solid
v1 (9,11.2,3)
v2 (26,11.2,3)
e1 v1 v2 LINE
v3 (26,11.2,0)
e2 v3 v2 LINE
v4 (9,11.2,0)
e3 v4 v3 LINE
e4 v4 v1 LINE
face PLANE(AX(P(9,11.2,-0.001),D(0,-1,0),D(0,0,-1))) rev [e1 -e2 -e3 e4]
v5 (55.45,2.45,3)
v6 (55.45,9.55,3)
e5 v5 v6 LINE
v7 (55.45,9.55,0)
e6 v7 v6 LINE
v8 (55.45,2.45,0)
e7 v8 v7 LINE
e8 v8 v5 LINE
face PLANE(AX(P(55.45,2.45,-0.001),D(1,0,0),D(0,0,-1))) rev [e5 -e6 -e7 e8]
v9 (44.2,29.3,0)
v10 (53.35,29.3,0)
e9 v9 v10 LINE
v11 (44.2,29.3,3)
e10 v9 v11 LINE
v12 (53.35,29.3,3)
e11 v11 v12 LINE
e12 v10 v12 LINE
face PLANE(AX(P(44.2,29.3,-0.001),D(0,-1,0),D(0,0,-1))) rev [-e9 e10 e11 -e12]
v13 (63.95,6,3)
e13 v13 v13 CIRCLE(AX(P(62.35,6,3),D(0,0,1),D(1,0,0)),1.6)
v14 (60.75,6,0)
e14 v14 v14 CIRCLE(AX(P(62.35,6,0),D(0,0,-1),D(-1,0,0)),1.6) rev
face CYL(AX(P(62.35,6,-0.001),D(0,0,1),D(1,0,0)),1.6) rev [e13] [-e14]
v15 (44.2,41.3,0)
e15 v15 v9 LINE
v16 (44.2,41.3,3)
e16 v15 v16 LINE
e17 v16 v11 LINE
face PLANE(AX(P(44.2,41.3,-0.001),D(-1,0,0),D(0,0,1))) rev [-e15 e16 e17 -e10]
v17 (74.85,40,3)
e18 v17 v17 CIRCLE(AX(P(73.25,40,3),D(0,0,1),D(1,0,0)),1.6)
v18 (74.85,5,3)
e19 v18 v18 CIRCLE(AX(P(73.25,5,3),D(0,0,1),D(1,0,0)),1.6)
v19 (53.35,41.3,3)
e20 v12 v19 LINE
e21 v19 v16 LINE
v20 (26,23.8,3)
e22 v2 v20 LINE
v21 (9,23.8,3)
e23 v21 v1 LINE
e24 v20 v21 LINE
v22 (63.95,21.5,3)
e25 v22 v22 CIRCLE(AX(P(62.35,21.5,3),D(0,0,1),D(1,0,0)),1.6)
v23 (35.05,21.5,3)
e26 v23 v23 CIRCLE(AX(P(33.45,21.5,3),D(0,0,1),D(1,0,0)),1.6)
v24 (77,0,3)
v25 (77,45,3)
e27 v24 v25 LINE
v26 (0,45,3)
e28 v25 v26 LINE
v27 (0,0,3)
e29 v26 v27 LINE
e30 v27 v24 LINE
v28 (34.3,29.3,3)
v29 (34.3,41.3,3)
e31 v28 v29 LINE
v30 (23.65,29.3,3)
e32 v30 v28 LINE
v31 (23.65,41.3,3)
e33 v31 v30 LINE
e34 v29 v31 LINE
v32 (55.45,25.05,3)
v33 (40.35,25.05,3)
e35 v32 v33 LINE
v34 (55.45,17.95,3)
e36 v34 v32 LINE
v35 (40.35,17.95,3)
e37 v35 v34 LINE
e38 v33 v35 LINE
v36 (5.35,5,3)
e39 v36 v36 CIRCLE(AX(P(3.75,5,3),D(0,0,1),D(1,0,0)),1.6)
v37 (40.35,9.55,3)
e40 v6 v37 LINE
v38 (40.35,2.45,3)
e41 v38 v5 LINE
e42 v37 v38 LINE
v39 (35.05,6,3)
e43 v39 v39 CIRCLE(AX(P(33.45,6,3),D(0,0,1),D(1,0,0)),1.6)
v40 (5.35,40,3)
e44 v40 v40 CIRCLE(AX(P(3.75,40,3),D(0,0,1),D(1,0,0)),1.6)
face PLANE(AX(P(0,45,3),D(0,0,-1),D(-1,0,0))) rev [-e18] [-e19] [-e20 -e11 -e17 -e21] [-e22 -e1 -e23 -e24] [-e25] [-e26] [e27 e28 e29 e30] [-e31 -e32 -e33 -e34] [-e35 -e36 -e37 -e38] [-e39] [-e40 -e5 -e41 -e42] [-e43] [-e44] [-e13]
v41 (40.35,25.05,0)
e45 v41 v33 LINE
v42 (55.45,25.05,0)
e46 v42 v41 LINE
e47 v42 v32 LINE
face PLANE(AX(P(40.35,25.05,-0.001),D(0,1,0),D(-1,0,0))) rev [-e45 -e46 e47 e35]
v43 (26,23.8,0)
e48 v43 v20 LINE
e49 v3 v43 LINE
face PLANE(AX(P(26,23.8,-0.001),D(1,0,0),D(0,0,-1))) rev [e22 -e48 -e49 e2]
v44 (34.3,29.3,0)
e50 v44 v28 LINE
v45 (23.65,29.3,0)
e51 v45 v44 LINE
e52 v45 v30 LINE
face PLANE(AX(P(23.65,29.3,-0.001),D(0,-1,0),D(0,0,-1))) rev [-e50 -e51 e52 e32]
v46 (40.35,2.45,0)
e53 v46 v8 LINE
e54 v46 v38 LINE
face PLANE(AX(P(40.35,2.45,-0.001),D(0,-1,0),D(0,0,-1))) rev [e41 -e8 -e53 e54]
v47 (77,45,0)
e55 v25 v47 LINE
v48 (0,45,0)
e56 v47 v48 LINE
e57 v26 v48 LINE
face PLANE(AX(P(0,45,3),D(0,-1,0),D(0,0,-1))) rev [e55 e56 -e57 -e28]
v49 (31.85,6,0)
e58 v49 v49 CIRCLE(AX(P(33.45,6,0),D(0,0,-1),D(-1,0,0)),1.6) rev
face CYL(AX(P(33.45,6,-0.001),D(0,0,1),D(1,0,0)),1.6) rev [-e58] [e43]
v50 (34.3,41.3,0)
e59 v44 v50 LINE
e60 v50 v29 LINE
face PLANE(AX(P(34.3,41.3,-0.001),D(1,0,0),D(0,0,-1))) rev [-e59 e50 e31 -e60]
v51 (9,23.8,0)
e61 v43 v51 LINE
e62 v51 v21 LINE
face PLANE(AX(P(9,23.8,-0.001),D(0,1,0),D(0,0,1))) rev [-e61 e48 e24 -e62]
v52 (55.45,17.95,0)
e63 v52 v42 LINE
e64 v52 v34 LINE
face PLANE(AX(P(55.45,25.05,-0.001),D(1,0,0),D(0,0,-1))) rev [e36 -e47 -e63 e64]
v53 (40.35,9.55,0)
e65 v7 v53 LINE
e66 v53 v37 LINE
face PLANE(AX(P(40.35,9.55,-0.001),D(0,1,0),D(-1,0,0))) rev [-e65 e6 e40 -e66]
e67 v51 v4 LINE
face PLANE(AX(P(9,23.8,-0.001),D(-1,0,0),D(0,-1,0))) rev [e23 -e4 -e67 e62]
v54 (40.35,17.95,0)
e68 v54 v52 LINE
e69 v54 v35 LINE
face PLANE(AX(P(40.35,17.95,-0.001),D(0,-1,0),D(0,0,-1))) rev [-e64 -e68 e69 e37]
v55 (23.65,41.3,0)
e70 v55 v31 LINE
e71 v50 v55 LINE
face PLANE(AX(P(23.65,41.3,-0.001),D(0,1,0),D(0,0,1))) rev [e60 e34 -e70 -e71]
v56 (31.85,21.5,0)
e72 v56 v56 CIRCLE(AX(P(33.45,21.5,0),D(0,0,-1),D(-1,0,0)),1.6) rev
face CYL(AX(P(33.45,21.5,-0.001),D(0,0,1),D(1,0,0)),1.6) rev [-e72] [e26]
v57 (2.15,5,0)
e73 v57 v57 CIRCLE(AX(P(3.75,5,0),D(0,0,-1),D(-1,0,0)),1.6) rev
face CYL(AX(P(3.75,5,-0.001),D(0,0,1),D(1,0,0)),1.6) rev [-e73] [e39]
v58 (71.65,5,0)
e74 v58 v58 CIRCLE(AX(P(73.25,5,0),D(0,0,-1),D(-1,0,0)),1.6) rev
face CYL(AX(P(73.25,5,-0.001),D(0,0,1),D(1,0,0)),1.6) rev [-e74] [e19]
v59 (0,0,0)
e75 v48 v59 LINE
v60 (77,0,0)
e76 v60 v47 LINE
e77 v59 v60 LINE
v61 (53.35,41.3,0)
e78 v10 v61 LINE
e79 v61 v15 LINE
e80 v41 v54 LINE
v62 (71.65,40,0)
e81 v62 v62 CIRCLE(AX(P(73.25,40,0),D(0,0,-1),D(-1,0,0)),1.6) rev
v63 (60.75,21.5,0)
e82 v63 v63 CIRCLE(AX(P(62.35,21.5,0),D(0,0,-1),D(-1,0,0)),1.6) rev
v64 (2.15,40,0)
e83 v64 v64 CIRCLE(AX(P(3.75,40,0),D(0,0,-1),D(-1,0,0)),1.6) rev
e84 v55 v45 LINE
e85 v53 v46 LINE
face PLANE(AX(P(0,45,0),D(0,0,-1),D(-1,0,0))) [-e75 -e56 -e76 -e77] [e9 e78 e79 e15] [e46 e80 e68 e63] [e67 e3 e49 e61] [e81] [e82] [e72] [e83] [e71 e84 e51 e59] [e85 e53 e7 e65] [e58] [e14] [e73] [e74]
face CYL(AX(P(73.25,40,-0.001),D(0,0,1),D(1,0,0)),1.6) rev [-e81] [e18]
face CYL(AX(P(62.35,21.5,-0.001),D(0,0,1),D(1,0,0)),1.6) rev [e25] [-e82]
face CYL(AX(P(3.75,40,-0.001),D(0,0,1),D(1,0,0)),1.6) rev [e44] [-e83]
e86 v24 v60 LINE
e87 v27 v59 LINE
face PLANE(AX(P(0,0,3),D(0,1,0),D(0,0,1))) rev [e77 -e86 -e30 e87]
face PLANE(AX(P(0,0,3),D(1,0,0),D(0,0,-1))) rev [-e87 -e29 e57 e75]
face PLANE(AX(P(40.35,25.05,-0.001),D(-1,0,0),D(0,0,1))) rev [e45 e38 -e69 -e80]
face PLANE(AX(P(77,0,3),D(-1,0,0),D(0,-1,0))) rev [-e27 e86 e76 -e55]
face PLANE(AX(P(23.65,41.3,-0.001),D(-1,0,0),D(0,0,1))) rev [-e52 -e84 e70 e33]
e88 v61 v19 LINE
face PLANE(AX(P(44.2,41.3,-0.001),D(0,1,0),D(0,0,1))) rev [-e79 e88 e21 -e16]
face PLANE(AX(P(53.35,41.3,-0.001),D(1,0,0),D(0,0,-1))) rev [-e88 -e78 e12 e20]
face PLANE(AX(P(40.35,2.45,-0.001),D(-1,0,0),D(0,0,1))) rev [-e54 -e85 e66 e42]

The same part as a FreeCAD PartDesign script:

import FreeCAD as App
import Part
import Sketcher
from FreeCAD import Vector

doc = App.newDocument("Part")
body = doc.addObject("PartDesign::Body", "Body")

# Sketch on XY plane
sketch1 = body.newObject("Sketcher::SketchObject", "Sketch")
sketch1.AttachmentSupport = (doc.getObject("XY_Plane"), [""])
sketch1.MapMode = "FlatFace"
sketch1.addGeometry([
    Part.LineSegment(Vector(0, 45, 0), Vector(0, 0, 0)),
    Part.LineSegment(Vector(0, 0, 0), Vector(77, 0, 0)),
    Part.LineSegment(Vector(77, 0, 0), Vector(77, 45, 0)),
    Part.LineSegment(Vector(77, 45, 0), Vector(0, 45, 0)),
], False)
sketch1.addConstraint([
    Sketcher.Constraint("Coincident", 0, 2, 1, 1),
    Sketcher.Constraint("Coincident", 1, 2, 2, 1),
    Sketcher.Constraint("Coincident", 2, 2, 3, 1),
    Sketcher.Constraint("Coincident", 3, 2, 0, 1),
    Sketcher.Constraint("Vertical", 0),
    Sketcher.Constraint("Horizontal", 1),
    Sketcher.Constraint("Vertical", 2),
    Sketcher.Constraint("Horizontal", 3),
    Sketcher.Constraint("Coincident", 0, 2, -1, 1),
    Sketcher.Constraint("DistanceX", 1, 1, 1, 2, 77.0),
    Sketcher.Constraint("DistanceY", 0, 2, 0, 1, 45.0),
])
pad1 = body.newObject("PartDesign::Pad", "Pad")
pad1.Profile = sketch1
pad1.Length = 3

# Sketch on XY plane
sketch2 = body.newObject("Sketcher::SketchObject", "Sketch001")
sketch2.AttachmentSupport = (doc.getObject("XY_Plane"), [""])
sketch2.MapMode = "FlatFace"
sketch2.AttachmentOffset = App.Placement(Vector(0, 0, 3), App.Rotation())
sketch2.addGeometry(Part.Circle(Vector(3.75, 40, 0), Vector(0, 0, 1), 1.6), False)
sketch2.addConstraint([
    Sketcher.Constraint("Diameter", 0, 3.2),
    Sketcher.Constraint("DistanceY", -1, 1, 0, 3, 40.0),
    Sketcher.Constraint("DistanceX", -1, 1, 0, 3, 3.75),
])
pocket1 = body.newObject("PartDesign::Pocket", "Pocket")
pocket1.Profile = sketch2
pocket1.Type = "UpToFirst"

# Sketch on XY plane
sketch3 = body.newObject("Sketcher::SketchObject", "Sketch002")
sketch3.AttachmentSupport = (doc.getObject("XY_Plane"), [""])
sketch3.MapMode = "FlatFace"
sketch3.AttachmentOffset = App.Placement(Vector(0, 0, 3), App.Rotation())
sketch3.addGeometry(Part.Circle(Vector(3.75, 5, 0), Vector(0, 0, 1), 1.6), False)
sketch3.addConstraint([
    Sketcher.Constraint("Diameter", 0, 3.2),
    Sketcher.Constraint("DistanceY", -1, 1, 0, 3, 5.0),
    Sketcher.Constraint("DistanceX", -1, 1, 0, 3, 3.75),
])
pocket2 = body.newObject("PartDesign::Pocket", "Pocket001")
pocket2.Profile = sketch3
pocket2.Type = "UpToFirst"

# Sketch on XY plane
sketch4 = body.newObject("Sketcher::SketchObject", "Sketch003")
sketch4.AttachmentSupport = (doc.getObject("XY_Plane"), [""])
sketch4.MapMode = "FlatFace"
sketch4.AttachmentOffset = App.Placement(Vector(0, 0, 3), App.Rotation())
sketch4.addGeometry(Part.Circle(Vector(73.25, 5, 0), Vector(0, 0, 1), 1.6), False)
sketch4.addConstraint([
    Sketcher.Constraint("Diameter", 0, 3.2),
    Sketcher.Constraint("DistanceY", -1, 1, 0, 3, 5.0),
    Sketcher.Constraint("DistanceX", -1, 1, 0, 3, 73.25),
])
pocket3 = body.newObject("PartDesign::Pocket", "Pocket002")
pocket3.Profile = sketch4
pocket3.Type = "UpToFirst"

# Sketch on XY plane
sketch5 = body.newObject("Sketcher::SketchObject", "Sketch004")
sketch5.AttachmentSupport = (doc.getObject("XY_Plane"), [""])
sketch5.MapMode = "FlatFace"
sketch5.AttachmentOffset = App.Placement(Vector(0, 0, 3), App.Rotation())
sketch5.addGeometry(Part.Circle(Vector(73.25, 40, 0), Vector(0, 0, 1), 1.6), False)
sketch5.addConstraint([
    Sketcher.Constraint("Diameter", 0, 3.2),
    Sketcher.Constraint("DistanceY", -1, 1, 0, 3, 40.0),
    Sketcher.Constraint("DistanceX", -1, 1, 0, 3, 73.25),
])
pocket4 = body.newObject("PartDesign::Pocket", "Pocket003")
pocket4.Profile = sketch5
pocket4.Type = "UpToFirst"

# Sketch on XY plane
sketch6 = body.newObject("Sketcher::SketchObject", "Sketch005")
sketch6.AttachmentSupport = (doc.getObject("XY_Plane"), [""])
sketch6.MapMode = "FlatFace"
sketch6.AttachmentOffset = App.Placement(Vector(0, 0, 3), App.Rotation())
sketch6.addGeometry(Part.Circle(Vector(33.45, 21.5, 0), Vector(0, 0, 1), 1.6), False)
sketch6.addConstraint([
    Sketcher.Constraint("Diameter", 0, 3.2),
    Sketcher.Constraint("DistanceY", -1, 1, 0, 3, 21.5),
    Sketcher.Constraint("DistanceX", -1, 1, 0, 3, 33.45),
])
pocket5 = body.newObject("PartDesign::Pocket", "Pocket004")
pocket5.Profile = sketch6
pocket5.Type = "UpToFirst"

# Sketch on XY plane
sketch7 = body.newObject("Sketcher::SketchObject", "Sketch006")
sketch7.AttachmentSupport = (doc.getObject("XY_Plane"), [""])
sketch7.MapMode = "FlatFace"
sketch7.AttachmentOffset = App.Placement(Vector(0, 0, 3), App.Rotation())
sketch7.addGeometry(Part.Circle(Vector(33.45, 6, 0), Vector(0, 0, 1), 1.6), False)
sketch7.addConstraint([
    Sketcher.Constraint("Diameter", 0, 3.2),
    Sketcher.Constraint("DistanceY", -1, 1, 0, 3, 6.0),
    Sketcher.Constraint("DistanceX", -1, 1, 0, 3, 33.45),
])
pocket6 = body.newObject("PartDesign::Pocket", "Pocket005")
pocket6.Profile = sketch7
pocket6.Type = "UpToFirst"

# Sketch on XY plane
sketch8 = body.newObject("Sketcher::SketchObject", "Sketch007")
sketch8.AttachmentSupport = (doc.getObject("XY_Plane"), [""])
sketch8.MapMode = "FlatFace"
sketch8.AttachmentOffset = App.Placement(Vector(0, 0, 3), App.Rotation())
sketch8.addGeometry(Part.Circle(Vector(62.35, 21.5, 0), Vector(0, 0, 1), 1.6), False)
sketch8.addConstraint([
    Sketcher.Constraint("Diameter", 0, 3.2),
    Sketcher.Constraint("DistanceY", -1, 1, 0, 3, 21.5),
    Sketcher.Constraint("DistanceX", -1, 1, 0, 3, 62.35),
])
pocket7 = body.newObject("PartDesign::Pocket", "Pocket006")
pocket7.Profile = sketch8
pocket7.Type = "UpToFirst"

# Sketch on XY plane
sketch9 = body.newObject("Sketcher::SketchObject", "Sketch008")
sketch9.AttachmentSupport = (doc.getObject("XY_Plane"), [""])
sketch9.MapMode = "FlatFace"
sketch9.AttachmentOffset = App.Placement(Vector(0, 0, 3), App.Rotation())
sketch9.addGeometry(Part.Circle(Vector(62.35, 6, 0), Vector(0, 0, 1), 1.6), False)
sketch9.addConstraint([
    Sketcher.Constraint("Diameter", 0, 3.2),
    Sketcher.Constraint("DistanceY", -1, 1, 0, 3, 6.0),
    Sketcher.Constraint("DistanceX", -1, 1, 0, 3, 62.35),
])
pocket8 = body.newObject("PartDesign::Pocket", "Pocket007")
pocket8.Profile = sketch9
pocket8.Type = "UpToFirst"

# Sketch on XY plane
sketch10 = body.newObject("Sketcher::SketchObject", "Sketch009")
sketch10.AttachmentSupport = (doc.getObject("XY_Plane"), [""])
sketch10.MapMode = "FlatFace"
sketch10.AttachmentOffset = App.Placement(Vector(0, 0, 3), App.Rotation())
sketch10.addGeometry([
    Part.LineSegment(Vector(9, 23.8, 0), Vector(9, 11.2, 0)),
    Part.LineSegment(Vector(9, 11.2, 0), Vector(26, 11.2, 0)),
    Part.LineSegment(Vector(26, 11.2, 0), Vector(26, 23.8, 0)),
    Part.LineSegment(Vector(26, 23.8, 0), Vector(9, 23.8, 0)),
], False)
sketch10.addConstraint([
    Sketcher.Constraint("Coincident", 0, 2, 1, 1),
    Sketcher.Constraint("Coincident", 1, 2, 2, 1),
    Sketcher.Constraint("Coincident", 2, 2, 3, 1),
    Sketcher.Constraint("Coincident", 3, 2, 0, 1),
    Sketcher.Constraint("Vertical", 0),
    Sketcher.Constraint("Horizontal", 1),
    Sketcher.Constraint("Vertical", 2),
    Sketcher.Constraint("Horizontal", 3),
    Sketcher.Constraint("DistanceX", 1, 1, 1, 2, 17.0),
    Sketcher.Constraint("DistanceY", 0, 2, 0, 1, 12.6),
    Sketcher.Constraint("DistanceX", -1, 1, 0, 2, 9.0),
    Sketcher.Constraint("DistanceY", -1, 1, 0, 2, 11.2),
])
pocket9 = body.newObject("PartDesign::Pocket", "Pocket008")
pocket9.Profile = sketch10
pocket9.Type = "UpToFirst"

# Sketch on XY plane
sketch11 = body.newObject("Sketcher::SketchObject", "Sketch010")
sketch11.AttachmentSupport = (doc.getObject("XY_Plane"), [""])
sketch11.MapMode = "FlatFace"
sketch11.AttachmentOffset = App.Placement(Vector(0, 0, 3), App.Rotation())
sketch11.addGeometry([
    Part.LineSegment(Vector(23.65, 41.3, 0), Vector(23.65, 29.3, 0)),
    Part.LineSegment(Vector(23.65, 29.3, 0), Vector(34.3, 29.3, 0)),
    Part.LineSegment(Vector(34.3, 29.3, 0), Vector(34.3, 41.3, 0)),
    Part.LineSegment(Vector(34.3, 41.3, 0), Vector(23.65, 41.3, 0)),
], False)
sketch11.addConstraint([
    Sketcher.Constraint("Coincident", 0, 2, 1, 1),
    Sketcher.Constraint("Coincident", 1, 2, 2, 1),
    Sketcher.Constraint("Coincident", 2, 2, 3, 1),
    Sketcher.Constraint("Coincident", 3, 2, 0, 1),
    Sketcher.Constraint("Vertical", 0),
    Sketcher.Constraint("Horizontal", 1),
    Sketcher.Constraint("Vertical", 2),
    Sketcher.Constraint("Horizontal", 3),
    Sketcher.Constraint("DistanceY", 0, 2, 0, 1, 12.0),
    Sketcher.Constraint("DistanceX", 1, 1, 1, 2, 10.65),
    Sketcher.Constraint("DistanceY", -1, 1, 0, 2, 29.3),
    Sketcher.Constraint("DistanceX", -1, 1, 1, 2, 34.3),
])
pocket10 = body.newObject("PartDesign::Pocket", "Pocket009")
pocket10.Profile = sketch11
pocket10.Type = "UpToFirst"

# Sketch on XY plane
sketch12 = body.newObject("Sketcher::SketchObject", "Sketch011")
sketch12.AttachmentSupport = (doc.getObject("XY_Plane"), [""])
sketch12.MapMode = "FlatFace"
sketch12.AttachmentOffset = App.Placement(Vector(0, 0, 3), App.Rotation())
sketch12.addGeometry([
    Part.LineSegment(Vector(44.2, 41.3, 0), Vector(44.2, 29.3, 0)),
    Part.LineSegment(Vector(44.2, 29.3, 0), Vector(53.35, 29.3, 0)),
    Part.LineSegment(Vector(53.35, 29.3, 0), Vector(53.35, 41.3, 0)),
    Part.LineSegment(Vector(53.35, 41.3, 0), Vector(44.2, 41.3, 0)),
], False)
sketch12.addConstraint([
    Sketcher.Constraint("Coincident", 0, 2, 1, 1),
    Sketcher.Constraint("Coincident", 1, 2, 2, 1),
    Sketcher.Constraint("Coincident", 2, 2, 3, 1),
    Sketcher.Constraint("Coincident", 3, 2, 0, 1),
    Sketcher.Constraint("Vertical", 0),
    Sketcher.Constraint("Horizontal", 1),
    Sketcher.Constraint("Vertical", 2),
    Sketcher.Constraint("Horizontal", 3),
    Sketcher.Constraint("DistanceY", 0, 2, 0, 1, 12.0),
    Sketcher.Constraint("DistanceX", 1, 1, 1, 2, 9.15),
    Sketcher.Constraint("DistanceX", -1, 1, 0, 2, 44.2),
    Sketcher.Constraint("DistanceY", -1, 1, 0, 2, 29.3),
])
pocket11 = body.newObject("PartDesign::Pocket", "Pocket010")
pocket11.Profile = sketch12
pocket11.Type = "UpToFirst"

# Sketch on XY plane
sketch13 = body.newObject("Sketcher::SketchObject", "Sketch012")
sketch13.AttachmentSupport = (doc.getObject("XY_Plane"), [""])
sketch13.MapMode = "FlatFace"
sketch13.AttachmentOffset = App.Placement(Vector(0, 0, 3), App.Rotation())
sketch13.addGeometry([
    Part.LineSegment(Vector(40.35, 25.05, 0), Vector(40.35, 17.95, 0)),
    Part.LineSegment(Vector(40.35, 17.95, 0), Vector(55.45, 17.95, 0)),
    Part.LineSegment(Vector(55.45, 17.95, 0), Vector(55.45, 25.05, 0)),
    Part.LineSegment(Vector(55.45, 25.05, 0), Vector(40.35, 25.05, 0)),
], False)
sketch13.addConstraint([
    Sketcher.Constraint("Coincident", 0, 2, 1, 1),
    Sketcher.Constraint("Coincident", 1, 2, 2, 1),
    Sketcher.Constraint("Coincident", 2, 2, 3, 1),
    Sketcher.Constraint("Coincident", 3, 2, 0, 1),
    Sketcher.Constraint("Vertical", 0),
    Sketcher.Constraint("Horizontal", 1),
    Sketcher.Constraint("Vertical", 2),
    Sketcher.Constraint("Horizontal", 3),
    Sketcher.Constraint("DistanceX", 1, 1, 1, 2, 15.1),
    Sketcher.Constraint("DistanceY", 0, 2, 0, 1, 7.1),
    Sketcher.Constraint("DistanceX", -1, 1, 0, 2, 40.35),
    Sketcher.Constraint("DistanceY", -1, 1, 0, 2, 17.95),
])
pocket12 = body.newObject("PartDesign::Pocket", "Pocket011")
pocket12.Profile = sketch13
pocket12.Type = "UpToFirst"

# Sketch on XY plane
sketch14 = body.newObject("Sketcher::SketchObject", "Sketch013")
sketch14.AttachmentSupport = (doc.getObject("XY_Plane"), [""])
sketch14.MapMode = "FlatFace"
sketch14.AttachmentOffset = App.Placement(Vector(0, 0, 3), App.Rotation())
sketch14.addGeometry([
    Part.LineSegment(Vector(40.35, 9.55, 0), Vector(40.35, 2.45, 0)),
    Part.LineSegment(Vector(40.35, 2.45, 0), Vector(55.45, 2.45, 0)),
    Part.LineSegment(Vector(55.45, 2.45, 0), Vector(55.45, 9.55, 0)),
    Part.LineSegment(Vector(55.45, 9.55, 0), Vector(40.35, 9.55, 0)),
], False)
sketch14.addConstraint([
    Sketcher.Constraint("Coincident", 0, 2, 1, 1),
    Sketcher.Constraint("Coincident", 1, 2, 2, 1),
    Sketcher.Constraint("Coincident", 2, 2, 3, 1),
    Sketcher.Constraint("Coincident", 3, 2, 0, 1),
    Sketcher.Constraint("Vertical", 0),
    Sketcher.Constraint("Horizontal", 1),
    Sketcher.Constraint("Vertical", 2),
    Sketcher.Constraint("Horizontal", 3),
    Sketcher.Constraint("DistanceX", 1, 1, 1, 2, 15.1),
    Sketcher.Constraint("DistanceY", 0, 2, 0, 1, 7.1),
    Sketcher.Constraint("DistanceX", -1, 1, 0, 2, 40.35),
    Sketcher.Constraint("DistanceY", -1, 1, 0, 2, 2.45),
])
pocket13 = body.newObject("PartDesign::Pocket", "Pocket012")
pocket13.Profile = sketch14
pocket13.Type = "UpToFirst"

doc.recompute()
